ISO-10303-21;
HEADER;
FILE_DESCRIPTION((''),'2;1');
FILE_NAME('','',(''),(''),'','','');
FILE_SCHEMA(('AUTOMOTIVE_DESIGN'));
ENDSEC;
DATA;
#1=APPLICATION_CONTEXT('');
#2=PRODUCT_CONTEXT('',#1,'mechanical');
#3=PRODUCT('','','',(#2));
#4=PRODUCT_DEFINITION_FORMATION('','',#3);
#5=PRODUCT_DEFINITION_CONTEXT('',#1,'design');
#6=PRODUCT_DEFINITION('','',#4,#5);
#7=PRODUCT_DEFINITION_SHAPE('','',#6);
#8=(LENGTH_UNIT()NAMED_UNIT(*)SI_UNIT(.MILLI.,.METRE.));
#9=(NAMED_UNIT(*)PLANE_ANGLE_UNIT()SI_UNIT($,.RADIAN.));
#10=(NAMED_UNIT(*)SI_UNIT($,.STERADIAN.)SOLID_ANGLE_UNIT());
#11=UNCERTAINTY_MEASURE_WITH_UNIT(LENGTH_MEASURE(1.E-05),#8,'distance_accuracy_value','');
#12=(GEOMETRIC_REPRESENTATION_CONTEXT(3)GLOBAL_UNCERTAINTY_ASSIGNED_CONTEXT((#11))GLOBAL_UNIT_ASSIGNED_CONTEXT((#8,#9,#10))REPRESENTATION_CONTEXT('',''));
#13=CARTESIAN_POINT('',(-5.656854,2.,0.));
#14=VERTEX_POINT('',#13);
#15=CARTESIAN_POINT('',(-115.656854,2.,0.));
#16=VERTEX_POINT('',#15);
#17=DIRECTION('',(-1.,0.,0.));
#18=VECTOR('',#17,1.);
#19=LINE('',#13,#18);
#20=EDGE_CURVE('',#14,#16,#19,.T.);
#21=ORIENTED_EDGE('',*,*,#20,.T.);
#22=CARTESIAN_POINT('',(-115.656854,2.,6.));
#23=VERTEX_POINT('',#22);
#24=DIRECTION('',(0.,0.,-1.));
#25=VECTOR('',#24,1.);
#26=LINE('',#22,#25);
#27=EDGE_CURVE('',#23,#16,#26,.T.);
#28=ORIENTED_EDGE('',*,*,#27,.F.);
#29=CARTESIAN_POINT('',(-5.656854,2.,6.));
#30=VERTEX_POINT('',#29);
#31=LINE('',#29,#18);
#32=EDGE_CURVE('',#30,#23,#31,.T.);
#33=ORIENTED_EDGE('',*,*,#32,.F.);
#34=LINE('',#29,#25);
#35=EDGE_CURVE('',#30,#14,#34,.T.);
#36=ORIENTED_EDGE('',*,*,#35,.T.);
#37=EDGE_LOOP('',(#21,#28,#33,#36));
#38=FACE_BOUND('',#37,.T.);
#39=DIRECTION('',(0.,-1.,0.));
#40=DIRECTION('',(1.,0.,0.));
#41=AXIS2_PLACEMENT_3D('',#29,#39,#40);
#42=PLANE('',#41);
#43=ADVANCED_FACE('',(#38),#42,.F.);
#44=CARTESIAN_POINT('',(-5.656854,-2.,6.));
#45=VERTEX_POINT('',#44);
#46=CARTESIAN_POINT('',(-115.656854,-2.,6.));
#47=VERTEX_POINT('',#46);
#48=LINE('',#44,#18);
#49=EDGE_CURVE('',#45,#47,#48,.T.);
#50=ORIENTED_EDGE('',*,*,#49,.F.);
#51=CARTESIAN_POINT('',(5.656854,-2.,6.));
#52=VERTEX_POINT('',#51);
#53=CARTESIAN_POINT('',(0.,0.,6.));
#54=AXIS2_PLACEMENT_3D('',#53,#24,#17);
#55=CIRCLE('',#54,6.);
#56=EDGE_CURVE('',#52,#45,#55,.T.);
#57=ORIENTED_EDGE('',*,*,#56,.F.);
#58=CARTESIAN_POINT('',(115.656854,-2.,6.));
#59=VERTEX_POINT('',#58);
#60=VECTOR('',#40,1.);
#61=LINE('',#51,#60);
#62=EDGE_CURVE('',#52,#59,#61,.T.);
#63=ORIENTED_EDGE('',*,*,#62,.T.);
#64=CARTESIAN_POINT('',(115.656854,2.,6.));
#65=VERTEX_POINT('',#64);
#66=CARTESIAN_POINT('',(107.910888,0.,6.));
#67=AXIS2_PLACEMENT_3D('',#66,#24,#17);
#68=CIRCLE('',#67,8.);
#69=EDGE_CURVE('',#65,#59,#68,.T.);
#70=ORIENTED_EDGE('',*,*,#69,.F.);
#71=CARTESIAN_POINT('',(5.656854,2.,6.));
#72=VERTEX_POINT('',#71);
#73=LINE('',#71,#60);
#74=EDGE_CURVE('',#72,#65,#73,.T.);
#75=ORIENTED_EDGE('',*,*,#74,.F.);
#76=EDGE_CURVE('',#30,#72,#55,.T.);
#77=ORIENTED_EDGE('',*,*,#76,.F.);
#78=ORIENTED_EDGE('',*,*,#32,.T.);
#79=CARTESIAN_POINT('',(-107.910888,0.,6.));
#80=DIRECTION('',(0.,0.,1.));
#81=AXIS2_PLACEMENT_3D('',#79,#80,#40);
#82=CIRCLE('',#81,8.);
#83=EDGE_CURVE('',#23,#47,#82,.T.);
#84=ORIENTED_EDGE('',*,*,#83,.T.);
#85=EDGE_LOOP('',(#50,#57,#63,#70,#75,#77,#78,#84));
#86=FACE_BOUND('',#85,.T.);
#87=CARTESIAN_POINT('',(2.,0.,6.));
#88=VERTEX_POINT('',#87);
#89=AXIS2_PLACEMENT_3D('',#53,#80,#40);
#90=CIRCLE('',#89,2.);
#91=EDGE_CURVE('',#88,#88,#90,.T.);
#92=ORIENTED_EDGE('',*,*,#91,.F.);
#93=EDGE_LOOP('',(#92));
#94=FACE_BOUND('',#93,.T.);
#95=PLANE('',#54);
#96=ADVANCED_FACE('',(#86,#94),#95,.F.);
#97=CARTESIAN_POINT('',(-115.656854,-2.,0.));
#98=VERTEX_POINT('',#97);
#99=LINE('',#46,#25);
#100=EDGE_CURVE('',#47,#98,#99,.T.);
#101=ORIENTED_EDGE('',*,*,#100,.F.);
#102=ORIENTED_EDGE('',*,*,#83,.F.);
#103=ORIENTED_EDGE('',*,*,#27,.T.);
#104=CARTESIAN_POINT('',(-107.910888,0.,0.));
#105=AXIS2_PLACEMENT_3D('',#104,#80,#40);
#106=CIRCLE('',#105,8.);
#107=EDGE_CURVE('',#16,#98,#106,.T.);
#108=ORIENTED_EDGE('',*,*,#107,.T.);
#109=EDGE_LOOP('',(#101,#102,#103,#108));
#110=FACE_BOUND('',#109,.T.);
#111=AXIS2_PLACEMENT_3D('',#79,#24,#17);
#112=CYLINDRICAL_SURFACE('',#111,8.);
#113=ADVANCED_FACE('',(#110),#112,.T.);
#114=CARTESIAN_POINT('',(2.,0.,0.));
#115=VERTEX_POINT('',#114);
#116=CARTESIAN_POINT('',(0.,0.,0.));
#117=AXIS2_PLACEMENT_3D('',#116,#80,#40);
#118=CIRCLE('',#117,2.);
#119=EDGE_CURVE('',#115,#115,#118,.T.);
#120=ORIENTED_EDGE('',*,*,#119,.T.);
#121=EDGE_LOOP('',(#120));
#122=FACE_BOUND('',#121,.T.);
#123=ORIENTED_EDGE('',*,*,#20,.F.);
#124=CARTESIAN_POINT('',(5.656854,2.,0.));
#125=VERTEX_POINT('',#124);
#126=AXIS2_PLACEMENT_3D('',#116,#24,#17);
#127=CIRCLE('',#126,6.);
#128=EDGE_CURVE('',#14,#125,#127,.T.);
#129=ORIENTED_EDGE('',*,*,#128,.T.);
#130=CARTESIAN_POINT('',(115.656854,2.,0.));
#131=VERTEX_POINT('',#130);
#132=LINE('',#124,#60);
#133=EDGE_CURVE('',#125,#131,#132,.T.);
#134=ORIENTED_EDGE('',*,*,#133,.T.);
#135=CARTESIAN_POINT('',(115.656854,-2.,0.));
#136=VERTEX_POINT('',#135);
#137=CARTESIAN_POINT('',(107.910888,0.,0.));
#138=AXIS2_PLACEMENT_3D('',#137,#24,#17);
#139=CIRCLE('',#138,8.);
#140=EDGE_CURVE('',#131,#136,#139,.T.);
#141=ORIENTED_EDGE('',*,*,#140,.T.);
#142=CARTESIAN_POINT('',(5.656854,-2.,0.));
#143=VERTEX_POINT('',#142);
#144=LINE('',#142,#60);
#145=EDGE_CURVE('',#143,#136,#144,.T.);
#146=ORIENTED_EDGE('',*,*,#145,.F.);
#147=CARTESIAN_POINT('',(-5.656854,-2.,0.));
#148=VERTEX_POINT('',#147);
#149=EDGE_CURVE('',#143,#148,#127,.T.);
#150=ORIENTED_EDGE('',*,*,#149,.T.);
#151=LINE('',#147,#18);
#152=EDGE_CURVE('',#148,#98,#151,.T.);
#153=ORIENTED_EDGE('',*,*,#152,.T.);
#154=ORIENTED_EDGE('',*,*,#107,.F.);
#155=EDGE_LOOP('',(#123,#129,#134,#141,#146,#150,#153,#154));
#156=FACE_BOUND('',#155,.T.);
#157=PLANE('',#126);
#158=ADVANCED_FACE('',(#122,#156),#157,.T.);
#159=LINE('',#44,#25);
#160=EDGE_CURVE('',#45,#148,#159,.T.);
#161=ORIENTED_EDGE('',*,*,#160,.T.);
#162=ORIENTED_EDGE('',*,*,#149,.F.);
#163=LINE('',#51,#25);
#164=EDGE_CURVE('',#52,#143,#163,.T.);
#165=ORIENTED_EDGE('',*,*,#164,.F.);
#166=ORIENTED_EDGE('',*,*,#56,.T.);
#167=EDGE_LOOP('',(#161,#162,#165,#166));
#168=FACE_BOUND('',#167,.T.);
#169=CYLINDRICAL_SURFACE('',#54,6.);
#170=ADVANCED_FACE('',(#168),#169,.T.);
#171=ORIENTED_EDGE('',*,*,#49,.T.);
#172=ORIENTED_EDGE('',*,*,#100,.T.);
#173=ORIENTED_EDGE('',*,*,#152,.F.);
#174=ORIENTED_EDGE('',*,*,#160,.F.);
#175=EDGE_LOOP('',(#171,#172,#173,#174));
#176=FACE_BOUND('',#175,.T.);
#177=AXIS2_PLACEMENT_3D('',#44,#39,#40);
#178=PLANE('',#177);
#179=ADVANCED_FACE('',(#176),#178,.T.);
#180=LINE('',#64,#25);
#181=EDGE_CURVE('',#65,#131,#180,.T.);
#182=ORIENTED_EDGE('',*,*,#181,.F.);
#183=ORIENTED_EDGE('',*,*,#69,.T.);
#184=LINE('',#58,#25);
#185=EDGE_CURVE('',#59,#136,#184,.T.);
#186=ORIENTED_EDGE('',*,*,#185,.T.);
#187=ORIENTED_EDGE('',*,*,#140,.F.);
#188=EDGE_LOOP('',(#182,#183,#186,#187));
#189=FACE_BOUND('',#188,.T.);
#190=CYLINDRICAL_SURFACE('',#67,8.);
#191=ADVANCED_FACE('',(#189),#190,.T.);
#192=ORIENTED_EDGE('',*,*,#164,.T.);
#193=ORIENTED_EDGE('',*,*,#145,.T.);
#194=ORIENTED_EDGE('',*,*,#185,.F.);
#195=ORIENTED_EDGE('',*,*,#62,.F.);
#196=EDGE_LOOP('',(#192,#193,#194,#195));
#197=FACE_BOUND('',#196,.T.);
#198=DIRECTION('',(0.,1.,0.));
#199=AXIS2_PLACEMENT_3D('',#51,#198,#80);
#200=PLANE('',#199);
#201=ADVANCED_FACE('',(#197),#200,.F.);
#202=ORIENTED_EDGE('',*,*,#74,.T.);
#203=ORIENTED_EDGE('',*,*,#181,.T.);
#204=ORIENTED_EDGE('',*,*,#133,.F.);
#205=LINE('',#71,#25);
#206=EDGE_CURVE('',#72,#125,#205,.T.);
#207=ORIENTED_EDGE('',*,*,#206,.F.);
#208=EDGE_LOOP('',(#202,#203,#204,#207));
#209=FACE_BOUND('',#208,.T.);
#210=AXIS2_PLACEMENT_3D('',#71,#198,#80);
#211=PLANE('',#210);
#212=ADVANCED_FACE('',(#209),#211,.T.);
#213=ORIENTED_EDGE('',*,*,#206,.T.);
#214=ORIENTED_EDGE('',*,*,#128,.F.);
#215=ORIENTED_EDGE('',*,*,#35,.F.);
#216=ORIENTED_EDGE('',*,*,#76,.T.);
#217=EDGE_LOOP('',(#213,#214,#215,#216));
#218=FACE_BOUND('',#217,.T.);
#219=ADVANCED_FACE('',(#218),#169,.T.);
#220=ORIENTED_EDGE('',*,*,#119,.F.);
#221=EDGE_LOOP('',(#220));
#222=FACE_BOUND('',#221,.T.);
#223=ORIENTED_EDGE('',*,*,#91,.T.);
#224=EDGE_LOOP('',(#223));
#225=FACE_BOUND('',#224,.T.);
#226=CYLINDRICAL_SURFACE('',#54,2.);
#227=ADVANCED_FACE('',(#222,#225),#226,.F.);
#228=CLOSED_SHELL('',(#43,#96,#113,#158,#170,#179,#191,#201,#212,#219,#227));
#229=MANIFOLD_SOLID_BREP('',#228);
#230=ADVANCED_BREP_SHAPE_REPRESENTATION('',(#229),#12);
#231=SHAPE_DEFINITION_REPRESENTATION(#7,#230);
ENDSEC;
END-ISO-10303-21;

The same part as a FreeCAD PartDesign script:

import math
import FreeCAD as App
import Part
import Sketcher
from FreeCAD import Vector

doc = App.newDocument("Part")
params = doc.addObject("Spreadsheet::Sheet", "Params")
for row, (alias, value) in enumerate([
    ("sketch1_diameter", "4 mm"),
    ("sketch1_radius", "8 mm"),
    ("sketch1_radius2", "6 mm"),
    ("sketch1_width", "110 mm"),
    ("pad1_length", "6 mm"),
], start=1):
    params.set(f"A{row}", alias)
    params.set(f"B{row}", "=" + value)
    params.setAlias(f"B{row}", alias)

body = doc.addObject("PartDesign::Body", "Body")

# Sketch on XY plane
sketch1 = body.newObject("Sketcher::SketchObject", "Sketch")
sketch1.AttachmentSupport = (doc.getObject("XY_Plane"), [""])
sketch1.MapMode = "FlatFace"
sketch1.addGeometry([
    Part.LineSegment(Vector(-5.7, 2, 0), Vector(-115.7, 2, 0)),  # 0
    Part.ArcOfCircle(Part.Circle(Vector(-107.9, 0, 0), Vector(0, 0, 1), 8), math.radians(166), math.radians(194)),  # 1
    Part.LineSegment(Vector(-115.7, -2, 0), Vector(-5.7, -2, 0)),  # 2
    Part.ArcOfCircle(Part.Circle(Vector(0, 0, 0), Vector(0, 0, 1), 6), math.radians(-161), math.radians(-19)),  # 3
    Part.LineSegment(Vector(5.7, -2, 0), Vector(115.7, -2, 0)),  # 4
    Part.ArcOfCircle(Part.Circle(Vector(107.9, 0, 0), Vector(0, 0, 1), 8), math.radians(-14), math.radians(14)),  # 5
    Part.LineSegment(Vector(115.7, 2, 0), Vector(5.7, 2, 0)),  # 6
    Part.ArcOfCircle(Part.Circle(Vector(0, 0, 0), Vector(0, 0, 1), 6), math.radians(19), math.radians(161)),  # 7
    Part.Circle(Vector(0, 0, 0), Vector(0, 0, 1), 2),  # 8
], False)
sketch1.addConstraint([
    Sketcher.Constraint("Coincident", 0, 2, 1, 1),
    Sketcher.Constraint("Coincident", 1, 2, 2, 1),
    Sketcher.Constraint("Coincident", 2, 2, 3, 1),
    Sketcher.Constraint("Coincident", 3, 2, 4, 1),
    Sketcher.Constraint("Coincident", 4, 2, 5, 1),
    Sketcher.Constraint("Coincident", 5, 2, 6, 1),
    Sketcher.Constraint("Coincident", 6, 2, 7, 1),
    Sketcher.Constraint("Coincident", 7, 2, 0, 1),
    Sketcher.Constraint("Horizontal", 0),
    Sketcher.Constraint("Horizontal", 2),
    Sketcher.Constraint("Horizontal", 4),
    Sketcher.Constraint("Horizontal", 6),
    Sketcher.Constraint("Coincident", 3, 3, -1, 1),
    Sketcher.Constraint("Coincident", 7, 3, -1, 1),
    Sketcher.Constraint("Coincident", 8, 3, -1, 1),
    Sketcher.Constraint("Equal", 1, 5),
    Sketcher.Constraint("Equal", 3, 7),
    Sketcher.Constraint("Symmetric", 1, 3, 5, 3, -1, 1),
    Sketcher.Constraint("Symmetric", 1, 2, 4, 2, -2),
    Sketcher.Constraint("Horizontal", 0, 2, 5, 2),
    Sketcher.Constraint("Vertical", 0, 2, 1, 2),
    Sketcher.Constraint("Diameter", 8, 4.0),
    Sketcher.Constraint("Radius", 1, 8.0),
    Sketcher.Constraint("Radius", 3, 6.0),
    Sketcher.Constraint("DistanceX", 0, 2, 0, 1, 110.0),
    Sketcher.Constraint("DistanceY", -1, 1, 0, 2, 2.0),
])
sketch1.setExpression("Constraints[21]", "Params.sketch1_diameter")
sketch1.setExpression("Constraints[22]", "Params.sketch1_radius")
sketch1.setExpression("Constraints[23]", "Params.sketch1_radius2")
sketch1.setExpression("Constraints[24]", "Params.sketch1_width")
pad1 = body.newObject("PartDesign::Pad", "Pad")
pad1.Profile = sketch1
pad1.setExpression("Length", "Params.pad1_length")

doc.recompute()
